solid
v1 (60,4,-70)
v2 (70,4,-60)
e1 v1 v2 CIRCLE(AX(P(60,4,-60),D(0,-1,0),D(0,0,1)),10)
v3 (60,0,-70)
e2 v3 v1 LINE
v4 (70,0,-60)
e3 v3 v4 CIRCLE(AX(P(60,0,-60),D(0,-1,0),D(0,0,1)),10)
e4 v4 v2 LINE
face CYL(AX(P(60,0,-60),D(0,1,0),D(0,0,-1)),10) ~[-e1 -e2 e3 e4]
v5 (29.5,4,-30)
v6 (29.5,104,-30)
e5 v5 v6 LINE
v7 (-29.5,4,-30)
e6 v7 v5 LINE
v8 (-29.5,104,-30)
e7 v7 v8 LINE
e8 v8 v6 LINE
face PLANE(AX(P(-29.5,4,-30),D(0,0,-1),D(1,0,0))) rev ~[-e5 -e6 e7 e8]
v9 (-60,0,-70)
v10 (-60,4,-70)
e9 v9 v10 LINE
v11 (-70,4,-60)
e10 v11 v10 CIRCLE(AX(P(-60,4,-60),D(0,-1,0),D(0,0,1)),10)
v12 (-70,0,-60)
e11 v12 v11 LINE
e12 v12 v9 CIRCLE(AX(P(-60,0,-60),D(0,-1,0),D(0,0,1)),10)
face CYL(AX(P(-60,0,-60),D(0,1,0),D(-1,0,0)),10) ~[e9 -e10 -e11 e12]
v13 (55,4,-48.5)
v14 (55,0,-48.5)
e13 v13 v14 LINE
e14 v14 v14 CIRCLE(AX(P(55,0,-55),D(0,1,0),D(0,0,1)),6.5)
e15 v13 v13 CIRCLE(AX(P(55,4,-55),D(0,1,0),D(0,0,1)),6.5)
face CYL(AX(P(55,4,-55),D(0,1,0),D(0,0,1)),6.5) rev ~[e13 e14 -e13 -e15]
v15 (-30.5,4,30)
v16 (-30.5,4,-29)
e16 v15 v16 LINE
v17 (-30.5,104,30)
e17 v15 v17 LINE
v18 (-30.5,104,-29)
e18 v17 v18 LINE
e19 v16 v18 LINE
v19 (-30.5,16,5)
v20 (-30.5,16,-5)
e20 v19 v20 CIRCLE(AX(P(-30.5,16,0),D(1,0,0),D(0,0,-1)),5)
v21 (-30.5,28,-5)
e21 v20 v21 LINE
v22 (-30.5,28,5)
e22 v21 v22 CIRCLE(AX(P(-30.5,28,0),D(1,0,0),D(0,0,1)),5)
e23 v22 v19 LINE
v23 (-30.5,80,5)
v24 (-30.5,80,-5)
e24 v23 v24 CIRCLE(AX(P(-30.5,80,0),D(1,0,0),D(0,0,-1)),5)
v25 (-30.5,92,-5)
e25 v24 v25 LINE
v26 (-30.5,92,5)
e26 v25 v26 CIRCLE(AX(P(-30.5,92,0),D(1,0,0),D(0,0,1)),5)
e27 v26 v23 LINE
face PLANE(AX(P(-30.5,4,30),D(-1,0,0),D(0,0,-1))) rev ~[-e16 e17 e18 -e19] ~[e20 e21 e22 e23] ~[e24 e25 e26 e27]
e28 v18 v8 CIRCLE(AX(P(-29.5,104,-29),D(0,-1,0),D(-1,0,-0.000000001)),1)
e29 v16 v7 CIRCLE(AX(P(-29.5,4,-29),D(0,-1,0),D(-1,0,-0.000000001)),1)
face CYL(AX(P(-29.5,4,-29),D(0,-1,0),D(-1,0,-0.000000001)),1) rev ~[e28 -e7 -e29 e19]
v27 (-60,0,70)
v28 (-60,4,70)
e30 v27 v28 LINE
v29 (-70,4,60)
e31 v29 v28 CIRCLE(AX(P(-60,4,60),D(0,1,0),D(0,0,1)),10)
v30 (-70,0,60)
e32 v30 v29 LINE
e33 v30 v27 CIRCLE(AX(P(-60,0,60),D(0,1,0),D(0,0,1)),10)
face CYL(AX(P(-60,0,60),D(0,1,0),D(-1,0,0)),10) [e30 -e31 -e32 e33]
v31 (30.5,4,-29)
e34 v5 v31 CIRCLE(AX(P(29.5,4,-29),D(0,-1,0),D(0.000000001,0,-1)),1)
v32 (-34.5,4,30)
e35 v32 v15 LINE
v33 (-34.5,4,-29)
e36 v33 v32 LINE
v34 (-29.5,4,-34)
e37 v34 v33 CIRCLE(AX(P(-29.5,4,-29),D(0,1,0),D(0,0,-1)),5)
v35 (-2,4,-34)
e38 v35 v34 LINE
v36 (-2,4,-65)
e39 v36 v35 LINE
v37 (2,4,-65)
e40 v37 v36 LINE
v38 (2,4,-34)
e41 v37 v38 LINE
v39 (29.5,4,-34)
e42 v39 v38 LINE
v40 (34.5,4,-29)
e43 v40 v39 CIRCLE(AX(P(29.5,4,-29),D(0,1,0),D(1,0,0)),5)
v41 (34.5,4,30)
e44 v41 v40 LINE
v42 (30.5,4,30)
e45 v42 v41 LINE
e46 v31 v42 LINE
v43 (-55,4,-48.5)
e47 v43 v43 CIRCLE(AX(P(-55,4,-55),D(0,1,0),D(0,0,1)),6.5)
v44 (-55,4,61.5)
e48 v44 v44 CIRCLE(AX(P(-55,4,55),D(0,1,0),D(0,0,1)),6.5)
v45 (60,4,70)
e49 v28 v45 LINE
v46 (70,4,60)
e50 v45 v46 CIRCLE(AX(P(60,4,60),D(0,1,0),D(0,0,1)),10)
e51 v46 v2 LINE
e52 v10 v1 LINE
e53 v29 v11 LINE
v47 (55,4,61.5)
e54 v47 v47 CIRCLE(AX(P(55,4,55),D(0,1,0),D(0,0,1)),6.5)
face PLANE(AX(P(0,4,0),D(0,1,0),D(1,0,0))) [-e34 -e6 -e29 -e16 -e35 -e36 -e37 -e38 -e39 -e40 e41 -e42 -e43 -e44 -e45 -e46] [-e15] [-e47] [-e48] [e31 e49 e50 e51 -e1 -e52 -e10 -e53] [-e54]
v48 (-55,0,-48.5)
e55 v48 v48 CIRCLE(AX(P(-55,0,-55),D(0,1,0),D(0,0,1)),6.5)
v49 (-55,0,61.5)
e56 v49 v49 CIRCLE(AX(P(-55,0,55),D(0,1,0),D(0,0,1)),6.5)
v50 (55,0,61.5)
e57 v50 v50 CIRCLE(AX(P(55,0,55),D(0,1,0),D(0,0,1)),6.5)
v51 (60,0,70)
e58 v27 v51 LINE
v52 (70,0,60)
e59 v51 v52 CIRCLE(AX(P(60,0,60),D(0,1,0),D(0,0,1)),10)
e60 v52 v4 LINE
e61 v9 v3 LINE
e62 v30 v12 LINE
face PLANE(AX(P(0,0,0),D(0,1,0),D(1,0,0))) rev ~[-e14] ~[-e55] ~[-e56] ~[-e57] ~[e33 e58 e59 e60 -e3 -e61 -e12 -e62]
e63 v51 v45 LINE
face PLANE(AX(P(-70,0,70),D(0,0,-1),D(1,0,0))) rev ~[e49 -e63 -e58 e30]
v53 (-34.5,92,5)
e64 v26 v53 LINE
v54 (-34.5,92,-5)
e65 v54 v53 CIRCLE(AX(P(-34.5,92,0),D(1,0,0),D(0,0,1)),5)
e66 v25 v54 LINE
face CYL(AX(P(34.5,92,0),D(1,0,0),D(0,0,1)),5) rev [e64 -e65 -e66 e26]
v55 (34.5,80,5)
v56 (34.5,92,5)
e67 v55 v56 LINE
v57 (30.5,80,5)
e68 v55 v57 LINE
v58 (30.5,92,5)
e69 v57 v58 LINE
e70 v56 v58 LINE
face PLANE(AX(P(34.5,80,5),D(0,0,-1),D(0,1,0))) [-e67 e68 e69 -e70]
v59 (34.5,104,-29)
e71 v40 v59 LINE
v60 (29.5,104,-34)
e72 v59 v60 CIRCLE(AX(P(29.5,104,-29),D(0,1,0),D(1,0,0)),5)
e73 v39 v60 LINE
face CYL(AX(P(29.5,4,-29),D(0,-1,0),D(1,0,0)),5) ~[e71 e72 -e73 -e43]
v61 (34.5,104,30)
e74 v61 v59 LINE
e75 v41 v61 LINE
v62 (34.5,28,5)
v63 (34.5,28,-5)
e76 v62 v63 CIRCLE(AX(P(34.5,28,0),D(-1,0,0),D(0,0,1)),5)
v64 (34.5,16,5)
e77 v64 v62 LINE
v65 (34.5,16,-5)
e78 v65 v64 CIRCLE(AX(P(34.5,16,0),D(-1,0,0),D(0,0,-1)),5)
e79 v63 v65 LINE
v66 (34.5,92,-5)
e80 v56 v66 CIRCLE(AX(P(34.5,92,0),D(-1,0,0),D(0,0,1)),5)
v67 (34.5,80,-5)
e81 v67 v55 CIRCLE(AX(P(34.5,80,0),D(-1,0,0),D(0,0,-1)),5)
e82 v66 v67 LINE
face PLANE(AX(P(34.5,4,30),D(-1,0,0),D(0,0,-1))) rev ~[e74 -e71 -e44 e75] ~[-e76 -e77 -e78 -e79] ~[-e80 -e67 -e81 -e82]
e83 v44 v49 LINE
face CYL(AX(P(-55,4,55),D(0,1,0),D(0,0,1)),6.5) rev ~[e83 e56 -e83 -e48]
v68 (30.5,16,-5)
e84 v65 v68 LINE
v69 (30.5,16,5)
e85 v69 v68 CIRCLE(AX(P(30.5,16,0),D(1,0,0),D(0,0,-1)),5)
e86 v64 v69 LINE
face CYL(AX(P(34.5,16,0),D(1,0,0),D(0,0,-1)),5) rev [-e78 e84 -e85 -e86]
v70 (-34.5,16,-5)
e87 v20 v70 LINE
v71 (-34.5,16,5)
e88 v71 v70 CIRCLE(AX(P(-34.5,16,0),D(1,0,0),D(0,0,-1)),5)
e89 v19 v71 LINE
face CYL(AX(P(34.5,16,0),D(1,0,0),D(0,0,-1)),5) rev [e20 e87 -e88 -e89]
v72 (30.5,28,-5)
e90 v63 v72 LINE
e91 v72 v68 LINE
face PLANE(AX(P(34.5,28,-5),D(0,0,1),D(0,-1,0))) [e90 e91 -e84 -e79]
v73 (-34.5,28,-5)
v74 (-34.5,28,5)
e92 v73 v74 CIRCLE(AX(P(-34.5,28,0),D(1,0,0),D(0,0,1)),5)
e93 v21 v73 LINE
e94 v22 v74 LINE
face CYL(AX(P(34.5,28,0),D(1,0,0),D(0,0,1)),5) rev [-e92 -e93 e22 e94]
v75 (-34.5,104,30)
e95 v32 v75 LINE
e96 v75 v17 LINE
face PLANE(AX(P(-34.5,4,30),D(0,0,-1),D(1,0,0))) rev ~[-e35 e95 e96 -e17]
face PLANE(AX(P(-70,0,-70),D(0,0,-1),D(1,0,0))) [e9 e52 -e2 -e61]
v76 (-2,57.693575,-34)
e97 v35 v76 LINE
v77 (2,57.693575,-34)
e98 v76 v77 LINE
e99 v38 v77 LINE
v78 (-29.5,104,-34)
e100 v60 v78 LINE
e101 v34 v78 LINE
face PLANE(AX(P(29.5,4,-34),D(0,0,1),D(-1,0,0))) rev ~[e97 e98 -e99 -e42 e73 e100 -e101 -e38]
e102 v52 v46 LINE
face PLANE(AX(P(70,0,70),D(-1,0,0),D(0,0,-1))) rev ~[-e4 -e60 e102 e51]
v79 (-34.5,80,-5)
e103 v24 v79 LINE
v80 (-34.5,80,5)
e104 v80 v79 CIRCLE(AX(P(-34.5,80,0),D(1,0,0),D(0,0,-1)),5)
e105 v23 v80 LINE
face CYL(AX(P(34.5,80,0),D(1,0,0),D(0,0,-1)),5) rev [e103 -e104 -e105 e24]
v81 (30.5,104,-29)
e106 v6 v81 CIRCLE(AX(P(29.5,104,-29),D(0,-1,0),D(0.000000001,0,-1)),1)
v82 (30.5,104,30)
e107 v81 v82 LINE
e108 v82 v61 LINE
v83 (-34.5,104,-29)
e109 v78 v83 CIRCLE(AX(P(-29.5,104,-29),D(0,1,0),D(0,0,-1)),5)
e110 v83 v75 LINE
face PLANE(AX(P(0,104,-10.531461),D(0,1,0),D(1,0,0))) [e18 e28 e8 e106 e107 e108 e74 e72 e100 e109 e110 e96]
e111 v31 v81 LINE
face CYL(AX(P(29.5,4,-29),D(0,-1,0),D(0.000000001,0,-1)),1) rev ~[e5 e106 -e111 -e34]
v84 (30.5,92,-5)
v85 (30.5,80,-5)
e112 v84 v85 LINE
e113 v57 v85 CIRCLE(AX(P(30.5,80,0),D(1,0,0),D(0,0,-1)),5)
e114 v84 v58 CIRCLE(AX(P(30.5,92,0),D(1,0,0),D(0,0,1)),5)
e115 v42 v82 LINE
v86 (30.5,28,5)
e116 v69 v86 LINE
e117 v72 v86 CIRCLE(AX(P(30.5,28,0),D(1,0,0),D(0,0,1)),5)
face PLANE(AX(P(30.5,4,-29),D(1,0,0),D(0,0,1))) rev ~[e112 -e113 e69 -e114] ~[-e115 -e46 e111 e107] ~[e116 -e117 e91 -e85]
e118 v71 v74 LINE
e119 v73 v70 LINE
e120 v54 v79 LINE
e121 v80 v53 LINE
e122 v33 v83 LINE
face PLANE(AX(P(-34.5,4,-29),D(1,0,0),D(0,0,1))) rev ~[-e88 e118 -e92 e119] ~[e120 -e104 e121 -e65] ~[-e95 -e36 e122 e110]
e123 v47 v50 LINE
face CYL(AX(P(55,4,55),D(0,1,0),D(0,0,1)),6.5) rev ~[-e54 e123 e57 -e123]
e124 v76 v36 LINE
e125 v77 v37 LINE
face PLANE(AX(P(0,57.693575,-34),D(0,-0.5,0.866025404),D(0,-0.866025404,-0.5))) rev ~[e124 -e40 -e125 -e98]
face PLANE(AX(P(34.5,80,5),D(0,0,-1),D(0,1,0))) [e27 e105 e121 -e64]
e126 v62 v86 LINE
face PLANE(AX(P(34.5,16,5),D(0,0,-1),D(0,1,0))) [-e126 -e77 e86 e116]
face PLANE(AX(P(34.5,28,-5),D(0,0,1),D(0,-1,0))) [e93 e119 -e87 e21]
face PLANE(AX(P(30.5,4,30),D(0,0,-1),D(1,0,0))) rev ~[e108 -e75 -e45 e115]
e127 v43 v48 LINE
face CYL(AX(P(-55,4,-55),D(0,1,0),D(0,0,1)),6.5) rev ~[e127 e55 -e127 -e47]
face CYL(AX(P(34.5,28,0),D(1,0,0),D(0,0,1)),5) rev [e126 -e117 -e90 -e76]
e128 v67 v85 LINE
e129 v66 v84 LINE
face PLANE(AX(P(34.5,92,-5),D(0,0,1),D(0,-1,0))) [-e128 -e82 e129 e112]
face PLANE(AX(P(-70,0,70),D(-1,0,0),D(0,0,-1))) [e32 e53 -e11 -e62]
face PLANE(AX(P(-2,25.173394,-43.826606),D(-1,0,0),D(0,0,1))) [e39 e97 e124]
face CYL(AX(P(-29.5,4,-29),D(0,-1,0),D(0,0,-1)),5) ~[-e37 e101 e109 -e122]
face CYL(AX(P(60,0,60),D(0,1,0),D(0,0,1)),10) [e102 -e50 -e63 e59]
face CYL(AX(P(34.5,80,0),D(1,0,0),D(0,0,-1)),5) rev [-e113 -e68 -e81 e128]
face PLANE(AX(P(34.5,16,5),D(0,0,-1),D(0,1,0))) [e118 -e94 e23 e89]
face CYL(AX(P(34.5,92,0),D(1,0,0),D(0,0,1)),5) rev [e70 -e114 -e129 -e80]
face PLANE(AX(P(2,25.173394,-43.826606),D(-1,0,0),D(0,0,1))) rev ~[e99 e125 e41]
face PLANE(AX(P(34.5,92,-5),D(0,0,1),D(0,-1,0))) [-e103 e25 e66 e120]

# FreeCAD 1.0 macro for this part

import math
import FreeCAD as App
import Part
import Sketcher
Q = App.Units.Quantity


def edges_at(feature, points):
    """Names of the edges that pass closest to the given points."""
    edges = feature.Shape.Edges
    near = lambda p: min(range(len(edges)), key=lambda i: edges[i].distToShape(Part.Vertex(*p))[0])
    return sorted({f"Edge{near(p) + 1}" for p in points})


def add_polygon(sketch, points):
    """Adds a closed chain of lines whose ends are joined by coincident constraints."""
    first, n = sketch.GeometryCount, len(points)
    for a, b in zip(points, points[1:] + points[:1]):
        sketch.addGeometry(Part.LineSegment(App.Vector(*a, 0), App.Vector(*b, 0)), False)
    for i in range(n):
        sketch.addConstraint(Sketcher.Constraint("Coincident", first + i, 2, first + (i + 1) % n, 1))

doc = App.newDocument("Part")
body = doc.addObject("PartDesign::Body", "Body")

sketch1 = body.newObject("Sketcher::SketchObject", "Sketch")
sketch1.AttachmentSupport = (doc.getObject("XZ_Plane"), [""])
sketch1.MapMode = "FlatFace"
add_polygon(sketch1, [(-70, -70), (-70, 70), (70, 70), (70, -70)])
sketch1.addConstraint(Sketcher.Constraint("Vertical", 0))
sketch1.addConstraint(Sketcher.Constraint("Horizontal", 1))
sketch1.addConstraint(Sketcher.Constraint("Vertical", 2))
sketch1.addConstraint(Sketcher.Constraint("Horizontal", 3))
sketch1.addConstraint(Sketcher.Constraint("Symmetric", 0, 2, 2, 2, -1, 1))
sketch1.addConstraint(Sketcher.Constraint("Equal", 3, 0))
sketch1.addConstraint(Sketcher.Constraint("DistanceX", 1, 1, 1, 2, Q("140 mm")))
pad1 = body.newObject("PartDesign::Pad", "Pad")
pad1.Profile = sketch1
pad1.Length = 4
pad1.Reversed = True

sketch2 = body.newObject("Sketcher::SketchObject", "Sketch001")
sketch2.AttachmentSupport = (doc.getObject("XZ_Plane"), [""])
sketch2.MapMode = "FlatFace"
sketch2.AttachmentOffset = App.Placement(App.Vector(0, 0, -4), App.Rotation())
sketch2.addGeometry(Part.LineSegment(App.Vector(-30.5, 30, 0), App.Vector(-30.5, -29, 0)), False)
sketch2.addGeometry(Part.ArcOfCircle(Part.Circle(App.Vector(-29.5, -29, 0), App.Vector(0, 0, 1), 1), math.radians(-180), math.radians(-90)), False)
sketch2.addGeometry(Part.LineSegment(App.Vector(-29.5, -30, 0), App.Vector(29.5, -30, 0)), False)
sketch2.addGeometry(Part.ArcOfCircle(Part.Circle(App.Vector(29.5, -29, 0), App.Vector(0, 0, 1), 1), math.radians(-90), math.radians(0)), False)
sketch2.addGeometry(Part.LineSegment(App.Vector(30.5, -29, 0), App.Vector(30.5, 30, 0)), False)
sketch2.addGeometry(Part.LineSegment(App.Vector(30.5, 30, 0), App.Vector(34.5, 30, 0)), False)
sketch2.addGeometry(Part.LineSegment(App.Vector(34.5, 30, 0), App.Vector(34.5, -29, 0)), False)
sketch2.addGeometry(Part.ArcOfCircle(Part.Circle(App.Vector(29.5, -29, 0), App.Vector(0, 0, 1), 5), math.radians(-90), math.radians(0)), False)
sketch2.addGeometry(Part.LineSegment(App.Vector(29.5, -34, 0), App.Vector(-29.5, -34, 0)), False)
sketch2.addGeometry(Part.ArcOfCircle(Part.Circle(App.Vector(-29.5, -29, 0), App.Vector(0, 0, 1), 5), math.radians(180), math.radians(270)), False)
sketch2.addGeometry(Part.LineSegment(App.Vector(-34.5, -29, 0), App.Vector(-34.5, 30, 0)), False)
sketch2.addGeometry(Part.LineSegment(App.Vector(-34.5, 30, 0), App.Vector(-30.5, 30, 0)), False)
sketch2.addConstraint(Sketcher.Constraint("Tangent", 0, 2, 1, 1))
sketch2.addConstraint(Sketcher.Constraint("Tangent", 1, 2, 2, 1))
sketch2.addConstraint(Sketcher.Constraint("Tangent", 2, 2, 3, 1))
sketch2.addConstraint(Sketcher.Constraint("Tangent", 3, 2, 4, 1))
sketch2.addConstraint(Sketcher.Constraint("Coincident", 4, 2, 5, 1))
sketch2.addConstraint(Sketcher.Constraint("Coincident", 5, 2, 6, 1))
sketch2.addConstraint(Sketcher.Constraint("Tangent", 6, 2, 7, 2))
sketch2.addConstraint(Sketcher.Constraint("Tangent", 7, 1, 8, 1))
sketch2.addConstraint(Sketcher.Constraint("Tangent", 8, 2, 9, 2))
sketch2.addConstraint(Sketcher.Constraint("Tangent", 9, 1, 10, 1))
sketch2.addConstraint(Sketcher.Constraint("Coincident", 10, 2, 11, 1))
sketch2.addConstraint(Sketcher.Constraint("Coincident", 11, 2, 0, 1))
sketch2.addConstraint(Sketcher.Constraint("Vertical", 0))
sketch2.addConstraint(Sketcher.Constraint("Horizontal", 2))
sketch2.addConstraint(Sketcher.Constraint("Vertical", 4))
sketch2.addConstraint(Sketcher.Constraint("Horizontal", 5))
sketch2.addConstraint(Sketcher.Constraint("Vertical", 6))
sketch2.addConstraint(Sketcher.Constraint("Horizontal", 8))
sketch2.addConstraint(Sketcher.Constraint("Vertical", 10))
sketch2.addConstraint(Sketcher.Constraint("Horizontal", 11))
sketch2.addConstraint(Sketcher.Constraint("Coincident", 7, 3, 3, 3))
sketch2.addConstraint(Sketcher.Constraint("Coincident", 9, 3, 1, 3))
sketch2.addConstraint(Sketcher.Constraint("Equal", 1, 3))
sketch2.addConstraint(Sketcher.Constraint("Symmetric", 5, 2, 10, 2, -2))
sketch2.addConstraint(Sketcher.Constraint("Equal", 8, 0))
sketch2.addConstraint(Sketcher.Constraint("Radius", 1, Q("1 mm")))
sketch2.addConstraint(Sketcher.Constraint("Radius", 7, Q("5 mm")))
sketch2.addConstraint(Sketcher.Constraint("DistanceX", 2, 1, 2, 2, Q("59 mm")))
sketch2.addConstraint(Sketcher.Constraint("DistanceY", 1, 3, -1, 1, Q("29 mm")))
pad2 = body.newObject("PartDesign::Pad", "Pad001")
pad2.Profile = sketch2
pad2.Length = 100
pad2.Reversed = True

sketch3 = body.newObject("Sketcher::SketchObject", "Sketch002")
sketch3.AttachmentSupport = (doc.getObject("YZ_Plane"), [""])
sketch3.MapMode = "FlatFace"
add_polygon(sketch3, [(4, -65), (58, -34), (4, -34)])
sketch3.addConstraint(Sketcher.Constraint("Horizontal", 1))
sketch3.addConstraint(Sketcher.Constraint("Vertical", 2))
sketch3.addConstraint(Sketcher.Constraint("DistanceY", 2, 2, 2, 1, Q("31 mm")))
sketch3.addConstraint(Sketcher.Constraint("Angle", 0, Q("30 deg")))
sketch3.addConstraint(Sketcher.Constraint("DistanceY", 0, 2, -1, 1, Q("34 mm")))
sketch3.addConstraint(Sketcher.Constraint("DistanceX", -1, 1, 1, 2, Q("4 mm")))
pad3 = body.newObject("PartDesign::Pad", "Pad002")
pad3.Profile = sketch3
pad3.Length = 4
pad3.Midplane = True

sketch4 = body.newObject("Sketcher::SketchObject", "Sketch003")
sketch4.AttachmentSupport = (doc.getObject("YZ_Plane"), [""])
sketch4.MapMode = "FlatFace"
sketch4.AttachmentOffset = App.Placement(App.Vector(0, 0, 34.5), App.Rotation())
sketch4.addGeometry(Part.LineSegment(App.Vector(80, -5, 0), App.Vector(92, -5, 0)), False)
sketch4.addGeometry(Part.ArcOfCircle(Part.Circle(App.Vector(92, 0, 0), App.Vector(0, 0, 1), 5), math.radians(-90), math.radians(90)), False)
sketch4.addGeometry(Part.LineSegment(App.Vector(92, 5, 0), App.Vector(80, 5, 0)), False)
sketch4.addGeometry(Part.ArcOfCircle(Part.Circle(App.Vector(80, 0, 0), App.Vector(0, 0, 1), 5), math.radians(90), math.radians(270)), False)
sketch4.addGeometry(Part.LineSegment(App.Vector(16, -5, 0), App.Vector(28, -5, 0)), False)
sketch4.addGeometry(Part.ArcOfCircle(Part.Circle(App.Vector(28, 0, 0), App.Vector(0, 0, 1), 5), math.radians(-90), math.radians(90)), False)
sketch4.addGeometry(Part.LineSegment(App.Vector(28, 5, 0), App.Vector(16, 5, 0)), False)
sketch4.addGeometry(Part.ArcOfCircle(Part.Circle(App.Vector(16, 0, 0), App.Vector(0, 0, 1), 5), math.radians(90), math.radians(270)), False)
sketch4.addConstraint(Sketcher.Constraint("Tangent", 0, 2, 1, 1))
sketch4.addConstraint(Sketcher.Constraint("Tangent", 1, 2, 2, 1))
sketch4.addConstraint(Sketcher.Constraint("Tangent", 2, 2, 3, 1))
sketch4.addConstraint(Sketcher.Constraint("Tangent", 3, 2, 0, 1))
sketch4.addConstraint(Sketcher.Constraint("Tangent", 4, 2, 5, 1))
sketch4.addConstraint(Sketcher.Constraint("Tangent", 5, 2, 6, 1))
sketch4.addConstraint(Sketcher.Constraint("Tangent", 6, 2, 7, 1))
sketch4.addConstraint(Sketcher.Constraint("Tangent", 7, 2, 4, 1))
sketch4.addConstraint(Sketcher.Constraint("Horizontal", 0))
sketch4.addConstraint(Sketcher.Constraint("Horizontal", 2))
sketch4.addConstraint(Sketcher.Constraint("Horizontal", 4))
sketch4.addConstraint(Sketcher.Constraint("Horizontal", 6))
sketch4.addConstraint(Sketcher.Constraint("Equal", 3, 5))
sketch4.addConstraint(Sketcher.Constraint("PointOnObject", 1, 3, -1))
sketch4.addConstraint(Sketcher.Constraint("PointOnObject", 5, 3, -1))
sketch4.addConstraint(Sketcher.Constraint("Equal", 2, 4))
sketch4.addConstraint(Sketcher.Constraint("Radius", 1, Q("5 mm")))
sketch4.addConstraint(Sketcher.Constraint("DistanceX", 0, 1, 0, 2, Q("12 mm")))
sketch4.addConstraint(Sketcher.Constraint("DistanceX", -1, 1, 1, 3, Q("92 mm")))
sketch4.addConstraint(Sketcher.Constraint("DistanceX", -1, 1, 5, 3, Q("28 mm")))
pocket1 = body.newObject("PartDesign::Pocket", "Pocket")
pocket1.Profile = sketch4
pocket1.Type = "ThroughAll"

sketch5 = body.newObject("Sketcher::SketchObject", "Sketch004")
sketch5.AttachmentSupport = (doc.getObject("XZ_Plane"), [""])
sketch5.MapMode = "FlatFace"
sketch5.AttachmentOffset = App.Placement(App.Vector(0, 0, -4), App.Rotation())
sketch5.addGeometry(Part.Circle(App.Vector(-55, -55, 0), App.Vector(0, 0, 1), 6), False)
sketch5.addGeometry(Part.Circle(App.Vector(-55, 55, 0), App.Vector(0, 0, 1), 6), False)
sketch5.addGeometry(Part.Circle(App.Vector(55, -55, 0), App.Vector(0, 0, 1), 6), False)
sketch5.addGeometry(Part.Circle(App.Vector(55, 55, 0), App.Vector(0, 0, 1), 6), False)
sketch5.addConstraint(Sketcher.Constraint("Equal", 0, 1))
sketch5.addConstraint(Sketcher.Constraint("Equal", 1, 2))
sketch5.addConstraint(Sketcher.Constraint("Equal", 2, 3))
sketch5.addConstraint(Sketcher.Constraint("Symmetric", 1, 3, 2, 3, -1, 1))
sketch5.addConstraint(Sketcher.Constraint("Symmetric", 0, 3, 3, 3, -1, 1))
sketch5.addConstraint(Sketcher.Constraint("Symmetric", 0, 3, 2, 3, -2))
sketch5.addConstraint(Sketcher.Constraint("Diameter", 0, Q("13 mm")))
sketch5.addConstraint(Sketcher.Constraint("DistanceX", 0, 3, -1, 1, Q("55 mm")))
sketch5.addConstraint(Sketcher.Constraint("DistanceY", 0, 3, -1, 1, Q("55 mm")))
pocket2 = body.newObject("PartDesign::Pocket", "Pocket001")
pocket2.Profile = sketch5
pocket2.Type = "ThroughAll"
pocket2.Reversed = True
doc.recompute()

fillet = body.newObject("PartDesign::Fillet", "Fillet")
fillet.Base = (pocket2, edges_at(pocket2, [
    (70, 2, 70),
    (-70, 2, 70),
    (-70, 2, -70),
    (70, 2, -70),
]))
fillet.Radius = 10

doc.recompute()
